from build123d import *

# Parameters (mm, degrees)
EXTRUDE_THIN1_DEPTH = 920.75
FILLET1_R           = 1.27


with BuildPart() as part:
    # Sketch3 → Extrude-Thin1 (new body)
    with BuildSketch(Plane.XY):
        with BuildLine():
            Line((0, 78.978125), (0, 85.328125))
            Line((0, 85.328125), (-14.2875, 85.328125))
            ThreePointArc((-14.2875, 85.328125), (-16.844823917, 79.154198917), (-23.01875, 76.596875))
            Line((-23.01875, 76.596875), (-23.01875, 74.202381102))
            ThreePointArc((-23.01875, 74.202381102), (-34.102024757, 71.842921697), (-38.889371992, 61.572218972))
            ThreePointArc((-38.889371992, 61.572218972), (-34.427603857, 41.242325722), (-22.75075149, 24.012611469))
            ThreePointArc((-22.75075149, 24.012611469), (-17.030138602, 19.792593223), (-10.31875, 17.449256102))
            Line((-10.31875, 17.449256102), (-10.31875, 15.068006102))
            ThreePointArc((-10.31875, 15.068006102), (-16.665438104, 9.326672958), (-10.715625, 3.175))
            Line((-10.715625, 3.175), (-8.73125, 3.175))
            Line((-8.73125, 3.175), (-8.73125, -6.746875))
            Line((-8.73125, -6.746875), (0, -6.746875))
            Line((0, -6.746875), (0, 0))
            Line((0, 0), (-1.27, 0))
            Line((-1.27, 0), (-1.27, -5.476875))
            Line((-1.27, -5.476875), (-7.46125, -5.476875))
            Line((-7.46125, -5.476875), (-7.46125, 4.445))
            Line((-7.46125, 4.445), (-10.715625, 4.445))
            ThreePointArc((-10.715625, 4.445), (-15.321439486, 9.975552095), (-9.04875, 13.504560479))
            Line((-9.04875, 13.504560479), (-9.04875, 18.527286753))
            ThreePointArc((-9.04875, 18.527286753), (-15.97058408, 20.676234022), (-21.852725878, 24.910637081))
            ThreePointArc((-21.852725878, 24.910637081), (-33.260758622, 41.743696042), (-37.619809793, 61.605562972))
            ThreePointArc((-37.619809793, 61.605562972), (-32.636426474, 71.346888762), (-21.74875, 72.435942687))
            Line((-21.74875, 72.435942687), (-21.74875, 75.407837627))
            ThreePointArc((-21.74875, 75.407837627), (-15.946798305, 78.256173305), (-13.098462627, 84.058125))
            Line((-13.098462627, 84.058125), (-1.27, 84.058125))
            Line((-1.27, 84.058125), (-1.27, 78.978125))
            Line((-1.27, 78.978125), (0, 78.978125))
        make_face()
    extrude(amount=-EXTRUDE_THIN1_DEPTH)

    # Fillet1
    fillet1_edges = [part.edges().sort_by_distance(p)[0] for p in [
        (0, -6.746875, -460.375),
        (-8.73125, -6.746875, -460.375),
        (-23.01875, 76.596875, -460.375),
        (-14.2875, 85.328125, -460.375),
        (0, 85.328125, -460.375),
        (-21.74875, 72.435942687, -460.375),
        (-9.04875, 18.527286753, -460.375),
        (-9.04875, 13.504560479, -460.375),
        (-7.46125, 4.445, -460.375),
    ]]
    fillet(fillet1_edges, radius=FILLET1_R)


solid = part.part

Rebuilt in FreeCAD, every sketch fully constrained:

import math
import FreeCAD as App
import Part
import Sketcher

V = App.Vector
Q = App.Units.Quantity


def edges_at(feature, points):
    """Names of the edges that pass closest to the given points."""
    edges = feature.Shape.Edges
    near = lambda p: min(range(len(edges)), key=lambda i: edges[i].distToShape(Part.Vertex(*p))[0])
    return sorted({f"Edge{near(p) + 1}" for p in points})

doc = App.newDocument("Part")
body = doc.addObject("PartDesign::Body", "Body")

sketch1 = body.newObject("Sketcher::SketchObject", "Sketch")
sketch1.AttachmentSupport = (doc.getObject("XY_Plane"), [""])
sketch1.MapMode = "FlatFace"
sketch1.addGeometry([
    Part.LineSegment(V(0, 78.978125, 0), V(0, 85.328125, 0)),
    Part.LineSegment(V(0, 85.328125, 0), V(-14.2875, 85.328125, 0)),
    Part.ArcOfCircle(Part.Circle(V(-23.01875, 85.328125, 0), V(0, 0, 1), 8.73125), math.radians(-90), math.radians(0)),
    Part.LineSegment(V(-23.01875, 76.596875, 0), V(-23.01875, 74.202381, 0)),
    Part.ArcOfCircle(Part.Circle(V(-26.19375, 61.905659, 0), V(0, 0, 1), 12.7), math.radians(75.522488), math.radians(181.50448)),
    Part.ArcOfCircle(Part.Circle(V(16.257236, 63.020599, 0), V(0, 0, 1), 55.165625), math.radians(-178.49552), math.radians(-135)),
    Part.ArcOfCircle(Part.Circle(V(-5.912771, 40.850592, 0), V(0, 0, 1), 23.8125), math.radians(-135), math.radians(-100.662764)),
    Part.LineSegment(V(-10.31875, 17.449256, 0), V(-10.31875, 15.068006, 0)),
    Part.ArcOfCircle(Part.Circle(V(-10.715625, 9.128125, 0), V(0, 0, 1), 5.953125), math.radians(86.177446), math.radians(270)),
    Part.LineSegment(V(-10.715625, 3.175, 0), V(-8.73125, 3.175, 0)),
    Part.LineSegment(V(-8.73125, 3.175, 0), V(-8.73125, -6.746875, 0)),
    Part.LineSegment(V(-8.73125, -6.746875, 0), V(0, -6.746875, 0)),
    Part.LineSegment(V(0, -6.746875, 0), V(0, 0, 0)),
    Part.LineSegment(V(0, 0, 0), V(-1.27, 0, 0)),
    Part.LineSegment(V(-1.27, 0, 0), V(-1.27, -5.476875, 0)),
    Part.LineSegment(V(-1.27, -5.476875, 0), V(-7.46125, -5.476875, 0)),
    Part.LineSegment(V(-7.46125, -5.476875, 0), V(-7.46125, 4.445, 0)),
    Part.LineSegment(V(-7.46125, 4.445, 0), V(-10.715625, 4.445, 0)),
    Part.ArcOfCircle(Part.Circle(V(-10.715625, 9.128125, 0), V(0, 0, 1), 4.683125), math.radians(69.149412), math.radians(270)),
    Part.LineSegment(V(-9.04875, 13.50456, 0), V(-9.04875, 18.527287, 0)),
    Part.ArcOfCircle(Part.Circle(V(-5.912771, 40.850592, 0), V(0, 0, 1), 22.5425), math.radians(-135), math.radians(-97.996584)),
    Part.ArcOfCircle(Part.Circle(V(16.257236, 63.020599, 0), V(0, 0, 1), 53.895625), math.radians(-178.49552), math.radians(-135)),
    Part.ArcOfCircle(Part.Circle(V(-26.19375, 61.905659, 0), V(0, 0, 1), 11.43), math.radians(67.11462), math.radians(181.50448)),
    Part.LineSegment(V(-21.74875, 72.435943, 0), V(-21.74875, 75.407838, 0)),
    Part.ArcOfCircle(Part.Circle(V(-23.01875, 85.328125, 0), V(0, 0, 1), 10.00125), math.radians(-82.704649), math.radians(-7.295351)),
    Part.LineSegment(V(-13.098463, 84.058125, 0), V(-1.27, 84.058125, 0)),
    Part.LineSegment(V(-1.27, 84.058125, 0), V(-1.27, 78.978125, 0)),
    Part.LineSegment(V(-1.27, 78.978125, 0), V(0, 78.978125, 0)),
], False)
sketch1.addConstraint([
    Sketcher.Constraint("Coincident", 0, 2, 1, 1),
    Sketcher.Constraint("Coincident", 1, 2, 2, 2),
    Sketcher.Constraint("Coincident", 2, 1, 3, 1),
    Sketcher.Constraint("Coincident", 3, 2, 4, 1),
    Sketcher.Constraint("Coincident", 4, 2, 5, 1),
    Sketcher.Constraint("Coincident", 5, 2, 6, 1),
    Sketcher.Constraint("Coincident", 6, 2, 7, 1),
    Sketcher.Constraint("Coincident", 7, 2, 8, 1),
    Sketcher.Constraint("Coincident", 8, 2, 9, 1),
    Sketcher.Constraint("Coincident", 9, 2, 10, 1),
    Sketcher.Constraint("Coincident", 10, 2, 11, 1),
    Sketcher.Constraint("Coincident", 11, 2, 12, 1),
    Sketcher.Constraint("Coincident", 12, 2, 13, 1),
    Sketcher.Constraint("Coincident", 13, 2, 14, 1),
    Sketcher.Constraint("Coincident", 14, 2, 15, 1),
    Sketcher.Constraint("Coincident", 15, 2, 16, 1),
    Sketcher.Constraint("Coincident", 16, 2, 17, 1),
    Sketcher.Constraint("Coincident", 17, 2, 18, 2),
    Sketcher.Constraint("Coincident", 18, 1, 19, 1),
    Sketcher.Constraint("Coincident", 19, 2, 20, 2),
    Sketcher.Constraint("Coincident", 20, 1, 21, 2),
    Sketcher.Constraint("Coincident", 21, 1, 22, 2),
    Sketcher.Constraint("Coincident", 22, 1, 23, 1),
    Sketcher.Constraint("Coincident", 23, 2, 24, 1),
    Sketcher.Constraint("Coincident", 24, 2, 25, 1),
    Sketcher.Constraint("Coincident", 25, 2, 26, 1),
    Sketcher.Constraint("Coincident", 26, 2, 27, 1),
    Sketcher.Constraint("Coincident", 27, 2, 0, 1),
    Sketcher.Constraint("Vertical", 0),
    Sketcher.Constraint("Horizontal", 1),
    Sketcher.Constraint("Vertical", 3),
    Sketcher.Constraint("Vertical", 7),
    Sketcher.Constraint("Horizontal", 9),
    Sketcher.Constraint("Vertical", 10),
    Sketcher.Constraint("Horizontal", 11),
    Sketcher.Constraint("Vertical", 12),
    Sketcher.Constraint("Horizontal", 13),
    Sketcher.Constraint("Vertical", 14),
    Sketcher.Constraint("Horizontal", 15),
    Sketcher.Constraint("Vertical", 16),
    Sketcher.Constraint("Horizontal", 17),
    Sketcher.Constraint("Vertical", 19),
    Sketcher.Constraint("Vertical", 23),
    Sketcher.Constraint("Horizontal", 25),
    Sketcher.Constraint("Vertical", 26),
    Sketcher.Constraint("Horizontal", 27),
    Sketcher.Constraint("Coincident", 12, 2, -1, 1),
    Sketcher.Constraint("Coincident", 18, 3, 8, 3),
    Sketcher.Constraint("Coincident", 20, 3, 6, 3),
    Sketcher.Constraint("Coincident", 21, 3, 5, 3),
    Sketcher.Constraint("Coincident", 22, 3, 4, 3),
    Sketcher.Constraint("Coincident", 24, 3, 2, 3),
    Sketcher.Constraint("PointOnObject", 0, 2, -2),
    Sketcher.Constraint("Radius", 4, Q("0.5 in")),
    Sketcher.Constraint("Radius", 22, Q("0.45 in")),
    Sketcher.Constraint("DistanceY", 26, 2, 26, 1, Q("0.2 in")),
    Sketcher.Constraint("Radius", 2, Q("0.34375 in")),
    Sketcher.Constraint("Radius", 5, Q("2.171875 in")),
    Sketcher.Constraint("Radius", 6, Q("0.9375 in")),
    Sketcher.Constraint("Radius", 8, Q("0.234375 in")),
    Sketcher.Constraint("DistanceY", 8, 3, 2, 3, Q("3 in")),
    Sketcher.Constraint("DistanceX", 13, 2, 13, 1, Q("0.05 in")),
    Sketcher.Constraint("DistanceX", 27, 1, 27, 2, Q("0.05 in")),
    Sketcher.Constraint("DistanceY", 0, 1, 0, 2, Q("0.25 in")),
    Sketcher.Constraint("DistanceX", 1, 2, 1, 1, Q("0.5625 in")),
    Sketcher.Constraint("DistanceX", 9, 1, 9, 2, Q("0.078125 in")),
    Sketcher.Constraint("DistanceX", 11, 1, 11, 2, Q("0.34375 in")),
    Sketcher.Constraint("DistanceY", 7, 2, 7, 1, Q("0.09375 in")),
    Sketcher.Constraint("DistanceY", 10, 2, 10, 1, Q("0.390625 in")),
    Sketcher.Constraint("DistanceY", 12, 1, 12, 2, Q("0.265625 in")),
    Sketcher.Constraint("DistanceY", 16, 1, 16, 2, Q("0.390625 in")),
    Sketcher.Constraint("DistanceY", 11, 2, 14, 2, Q("0.05 in")),
    Sketcher.Constraint("DistanceX", 10, 2, 15, 2, Q("0.05 in")),
    Sketcher.Constraint("DistanceX", 7, 2, 18, 1, Q("0.05 in")),
    Sketcher.Constraint("DistanceX", 3, 2, 22, 1, Q("0.05 in")),
    Sketcher.Constraint("DistanceX", 2, 3, 22, 1, Q("0.05 in")),
    Sketcher.Constraint("DistanceY", 24, 2, 2, 3, Q("0.05 in")),
    Sketcher.Constraint("DistanceX", 4, 3, -1, 1, Q("1.03125 in")),
    Sketcher.Constraint("DistanceX", 8, 3, -1, 1, Q("0.421875 in")),
    Sketcher.Constraint("DistanceX", 6, 2, -1, 1, Q("0.40625 in")),
    Sketcher.Constraint("DistanceX", 17, 2, -1, 1, Q("0.421875 in")),
    Sketcher.Constraint("Radius", 24, Q("10.00125 mm")),
    Sketcher.Constraint("DistanceY", 6, 2, 5, 2, Q("0.2583998 in")),
    Sketcher.Constraint("DistanceY", -1, 1, 5, 3, Q("63.020599 mm")),
    Sketcher.Constraint("DistanceY", 3, 2, 3, 1, Q("2.394494 mm")),
    Sketcher.Constraint("DistanceX", 4, 2, -1, 1, Q("38.889372 mm")),
    Sketcher.Constraint("DistanceX", 21, 1, -1, 1, Q("37.61981 mm")),
    Sketcher.Constraint("DistanceY", 6, 2, 20, 1, Q("7.461381 mm")),
])
pad1 = body.newObject("PartDesign::Pad", "Pad")
pad1.Profile = sketch1
pad1.Length = Q("36.25 in")
pad1.Reversed = True
doc.recompute()

fillet = body.newObject("PartDesign::Fillet", "Fillet")
fillet.Base = (pad1, edges_at(pad1, [
    (0, -6.747, -460.375),
    (-8.731, -6.747, -460.375),
    (-23.019, 76.597, -460.375),
    (-14.287, 85.328, -460.375),
    (0, 85.328, -460.375),
    (-21.749, 72.436, -460.375),
    (-9.049, 18.527, -460.375),
    (-9.049, 13.505, -460.375),
    (-7.461, 4.445, -460.375),
]))
fillet.Radius = Q("0.05 in")

doc.recompute()
